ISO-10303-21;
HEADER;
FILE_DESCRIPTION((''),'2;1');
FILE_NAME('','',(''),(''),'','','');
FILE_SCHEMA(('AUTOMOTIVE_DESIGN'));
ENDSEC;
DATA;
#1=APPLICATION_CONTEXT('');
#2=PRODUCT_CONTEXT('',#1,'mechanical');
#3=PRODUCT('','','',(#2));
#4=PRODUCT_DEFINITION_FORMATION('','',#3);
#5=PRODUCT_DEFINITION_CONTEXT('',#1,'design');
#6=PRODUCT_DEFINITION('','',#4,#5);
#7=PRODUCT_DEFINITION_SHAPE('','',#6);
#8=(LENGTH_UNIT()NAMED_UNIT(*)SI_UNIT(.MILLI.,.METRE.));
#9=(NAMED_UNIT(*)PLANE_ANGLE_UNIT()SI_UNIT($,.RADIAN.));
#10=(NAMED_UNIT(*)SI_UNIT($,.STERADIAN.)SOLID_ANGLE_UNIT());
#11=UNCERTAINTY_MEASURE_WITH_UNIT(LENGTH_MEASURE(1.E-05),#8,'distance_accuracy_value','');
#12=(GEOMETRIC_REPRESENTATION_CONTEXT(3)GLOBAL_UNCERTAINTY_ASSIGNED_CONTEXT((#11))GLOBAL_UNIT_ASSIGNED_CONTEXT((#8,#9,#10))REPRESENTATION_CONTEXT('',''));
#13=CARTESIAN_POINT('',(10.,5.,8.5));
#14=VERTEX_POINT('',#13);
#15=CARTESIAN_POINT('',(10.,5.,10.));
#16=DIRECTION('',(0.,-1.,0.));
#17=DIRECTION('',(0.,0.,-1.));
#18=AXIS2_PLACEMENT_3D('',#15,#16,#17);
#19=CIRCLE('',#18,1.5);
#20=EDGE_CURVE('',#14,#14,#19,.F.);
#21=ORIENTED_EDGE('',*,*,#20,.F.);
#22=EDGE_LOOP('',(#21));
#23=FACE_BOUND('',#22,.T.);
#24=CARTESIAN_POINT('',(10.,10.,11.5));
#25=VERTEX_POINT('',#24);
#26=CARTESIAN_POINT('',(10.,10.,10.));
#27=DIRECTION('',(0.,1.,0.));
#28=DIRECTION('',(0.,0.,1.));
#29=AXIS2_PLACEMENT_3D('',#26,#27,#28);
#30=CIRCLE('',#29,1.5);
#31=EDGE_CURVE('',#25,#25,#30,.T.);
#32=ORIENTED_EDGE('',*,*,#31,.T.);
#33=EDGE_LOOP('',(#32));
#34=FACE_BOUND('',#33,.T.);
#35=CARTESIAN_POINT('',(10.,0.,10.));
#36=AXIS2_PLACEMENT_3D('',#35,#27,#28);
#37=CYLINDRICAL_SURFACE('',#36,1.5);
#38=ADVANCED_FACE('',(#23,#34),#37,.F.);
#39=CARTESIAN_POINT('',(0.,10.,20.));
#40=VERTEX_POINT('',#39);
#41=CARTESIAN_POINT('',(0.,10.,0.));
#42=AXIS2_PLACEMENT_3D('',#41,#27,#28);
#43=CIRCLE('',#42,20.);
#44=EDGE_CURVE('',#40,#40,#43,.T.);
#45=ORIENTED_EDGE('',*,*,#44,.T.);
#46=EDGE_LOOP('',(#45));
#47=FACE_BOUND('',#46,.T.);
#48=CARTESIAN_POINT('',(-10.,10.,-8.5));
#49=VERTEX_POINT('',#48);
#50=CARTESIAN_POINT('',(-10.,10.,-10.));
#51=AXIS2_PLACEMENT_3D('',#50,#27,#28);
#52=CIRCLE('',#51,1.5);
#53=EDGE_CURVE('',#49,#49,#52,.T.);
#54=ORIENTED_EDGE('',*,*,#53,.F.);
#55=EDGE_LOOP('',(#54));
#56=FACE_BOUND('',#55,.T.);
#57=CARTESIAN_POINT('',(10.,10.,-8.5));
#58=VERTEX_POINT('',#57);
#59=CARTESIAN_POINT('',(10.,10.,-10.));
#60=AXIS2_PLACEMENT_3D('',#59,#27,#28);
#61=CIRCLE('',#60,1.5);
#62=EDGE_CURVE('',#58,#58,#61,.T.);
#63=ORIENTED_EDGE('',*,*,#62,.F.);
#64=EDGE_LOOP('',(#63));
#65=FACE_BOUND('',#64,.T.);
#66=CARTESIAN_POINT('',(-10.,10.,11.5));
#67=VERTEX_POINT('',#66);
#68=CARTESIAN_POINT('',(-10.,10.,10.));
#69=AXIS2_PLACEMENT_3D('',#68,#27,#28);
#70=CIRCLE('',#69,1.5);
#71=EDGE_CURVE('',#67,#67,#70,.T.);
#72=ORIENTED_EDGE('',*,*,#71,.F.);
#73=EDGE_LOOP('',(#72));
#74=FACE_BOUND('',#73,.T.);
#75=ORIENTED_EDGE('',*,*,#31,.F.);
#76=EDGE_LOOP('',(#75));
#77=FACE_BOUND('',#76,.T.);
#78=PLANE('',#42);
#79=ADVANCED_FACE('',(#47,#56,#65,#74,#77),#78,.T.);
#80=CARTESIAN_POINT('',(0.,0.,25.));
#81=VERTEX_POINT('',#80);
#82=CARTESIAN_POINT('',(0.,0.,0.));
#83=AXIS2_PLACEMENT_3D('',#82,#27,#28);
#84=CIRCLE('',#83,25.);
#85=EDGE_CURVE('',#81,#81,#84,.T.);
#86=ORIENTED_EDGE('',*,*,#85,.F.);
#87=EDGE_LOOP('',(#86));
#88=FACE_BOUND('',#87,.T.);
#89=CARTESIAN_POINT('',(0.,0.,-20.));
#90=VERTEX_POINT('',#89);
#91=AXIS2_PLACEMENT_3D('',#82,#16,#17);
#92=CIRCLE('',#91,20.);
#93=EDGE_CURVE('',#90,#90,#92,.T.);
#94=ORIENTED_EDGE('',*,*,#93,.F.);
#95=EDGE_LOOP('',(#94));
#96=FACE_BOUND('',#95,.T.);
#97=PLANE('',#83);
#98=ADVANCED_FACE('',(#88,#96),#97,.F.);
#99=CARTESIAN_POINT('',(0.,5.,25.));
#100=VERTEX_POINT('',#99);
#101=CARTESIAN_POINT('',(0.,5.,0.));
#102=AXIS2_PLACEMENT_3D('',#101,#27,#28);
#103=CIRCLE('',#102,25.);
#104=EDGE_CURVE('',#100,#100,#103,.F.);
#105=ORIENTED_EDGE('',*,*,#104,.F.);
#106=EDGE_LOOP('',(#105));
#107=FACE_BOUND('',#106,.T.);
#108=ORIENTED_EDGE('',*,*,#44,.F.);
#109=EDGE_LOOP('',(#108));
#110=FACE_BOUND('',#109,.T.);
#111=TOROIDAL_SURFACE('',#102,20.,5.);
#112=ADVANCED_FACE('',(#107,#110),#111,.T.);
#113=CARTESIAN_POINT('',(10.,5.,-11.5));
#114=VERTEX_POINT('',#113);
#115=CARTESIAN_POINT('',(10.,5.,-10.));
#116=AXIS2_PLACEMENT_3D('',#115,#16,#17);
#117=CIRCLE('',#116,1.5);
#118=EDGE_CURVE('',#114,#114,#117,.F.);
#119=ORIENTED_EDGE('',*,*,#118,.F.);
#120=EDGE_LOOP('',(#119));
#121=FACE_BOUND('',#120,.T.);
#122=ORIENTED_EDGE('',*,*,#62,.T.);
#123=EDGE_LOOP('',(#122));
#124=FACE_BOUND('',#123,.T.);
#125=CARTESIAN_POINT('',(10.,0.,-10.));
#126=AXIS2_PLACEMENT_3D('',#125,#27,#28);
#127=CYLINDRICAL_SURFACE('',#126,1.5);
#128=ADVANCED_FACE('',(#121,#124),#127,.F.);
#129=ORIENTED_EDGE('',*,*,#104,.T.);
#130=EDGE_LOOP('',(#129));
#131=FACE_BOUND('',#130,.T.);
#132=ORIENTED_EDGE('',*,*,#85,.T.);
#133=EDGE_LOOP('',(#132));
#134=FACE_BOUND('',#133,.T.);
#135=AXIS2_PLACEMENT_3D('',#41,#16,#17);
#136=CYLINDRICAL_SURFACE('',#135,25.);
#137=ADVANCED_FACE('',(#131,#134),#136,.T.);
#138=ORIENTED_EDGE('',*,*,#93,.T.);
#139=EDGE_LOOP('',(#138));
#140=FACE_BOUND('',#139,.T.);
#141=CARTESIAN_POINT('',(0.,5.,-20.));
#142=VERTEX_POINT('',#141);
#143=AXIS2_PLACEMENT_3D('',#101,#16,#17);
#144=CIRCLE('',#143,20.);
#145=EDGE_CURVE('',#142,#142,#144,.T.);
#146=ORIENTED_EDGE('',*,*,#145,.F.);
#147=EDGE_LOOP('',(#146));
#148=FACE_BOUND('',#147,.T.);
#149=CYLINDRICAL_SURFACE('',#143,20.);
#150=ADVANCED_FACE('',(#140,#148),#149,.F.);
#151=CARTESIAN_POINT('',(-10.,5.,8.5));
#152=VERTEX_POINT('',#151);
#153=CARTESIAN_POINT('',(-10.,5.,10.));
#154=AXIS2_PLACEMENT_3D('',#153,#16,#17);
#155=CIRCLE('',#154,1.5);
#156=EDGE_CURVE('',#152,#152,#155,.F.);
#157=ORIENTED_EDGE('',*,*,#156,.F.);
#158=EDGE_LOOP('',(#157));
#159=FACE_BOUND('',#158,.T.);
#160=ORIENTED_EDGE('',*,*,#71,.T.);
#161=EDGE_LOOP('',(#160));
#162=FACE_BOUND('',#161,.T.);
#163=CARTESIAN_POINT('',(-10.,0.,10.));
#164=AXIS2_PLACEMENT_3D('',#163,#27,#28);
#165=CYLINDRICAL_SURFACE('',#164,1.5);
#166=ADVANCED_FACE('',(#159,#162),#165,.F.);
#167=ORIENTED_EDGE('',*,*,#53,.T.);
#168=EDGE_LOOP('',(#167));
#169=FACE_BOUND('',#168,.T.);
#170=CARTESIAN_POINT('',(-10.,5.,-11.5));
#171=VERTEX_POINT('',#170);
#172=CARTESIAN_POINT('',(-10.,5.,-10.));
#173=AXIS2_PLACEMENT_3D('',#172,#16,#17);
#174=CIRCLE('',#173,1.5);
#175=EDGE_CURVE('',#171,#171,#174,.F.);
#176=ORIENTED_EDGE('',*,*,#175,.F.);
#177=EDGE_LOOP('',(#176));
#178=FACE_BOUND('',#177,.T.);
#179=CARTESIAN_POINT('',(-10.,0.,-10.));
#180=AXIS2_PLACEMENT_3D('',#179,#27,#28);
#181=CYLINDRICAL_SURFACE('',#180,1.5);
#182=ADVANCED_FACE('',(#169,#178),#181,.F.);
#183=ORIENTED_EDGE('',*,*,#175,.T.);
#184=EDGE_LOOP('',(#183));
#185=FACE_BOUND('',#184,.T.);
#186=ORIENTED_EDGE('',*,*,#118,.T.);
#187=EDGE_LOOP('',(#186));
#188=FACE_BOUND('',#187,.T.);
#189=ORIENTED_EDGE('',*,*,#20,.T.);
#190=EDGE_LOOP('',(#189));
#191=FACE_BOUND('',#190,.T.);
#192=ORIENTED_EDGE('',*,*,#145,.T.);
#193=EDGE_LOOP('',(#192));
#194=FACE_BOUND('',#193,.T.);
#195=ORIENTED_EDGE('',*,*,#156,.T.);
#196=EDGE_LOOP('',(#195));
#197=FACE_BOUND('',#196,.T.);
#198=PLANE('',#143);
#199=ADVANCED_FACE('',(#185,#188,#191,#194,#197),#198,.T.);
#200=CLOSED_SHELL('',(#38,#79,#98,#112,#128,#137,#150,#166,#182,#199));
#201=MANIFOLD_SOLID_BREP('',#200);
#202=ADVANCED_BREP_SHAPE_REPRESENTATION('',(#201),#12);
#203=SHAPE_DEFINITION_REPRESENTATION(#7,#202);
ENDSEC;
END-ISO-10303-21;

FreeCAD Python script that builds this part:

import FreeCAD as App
import Part
import Sketcher

V = App.Vector


def edges_at(feature, points):
    """Names of the edges that pass closest to the given points."""
    edges = feature.Shape.Edges
    near = lambda p: min(range(len(edges)), key=lambda i: edges[i].distToShape(Part.Vertex(*p))[0])
    return sorted({f"Edge{near(p) + 1}" for p in points})

doc = App.newDocument("Part")
body = doc.addObject("PartDesign::Body", "Body")

sketch1 = doc.addObject("Sketcher::SketchObject", "Sketch")
body.addObject(sketch1)
sketch1.AttachmentSupport = (doc.XZ_Plane, [""])
sketch1.MapMode = "FlatFace"
sketch1.addGeometry(Part.Circle(V(0, 0, 0), V(0, 0, 1), 25), False)
sketch1.addConstraint(Sketcher.Constraint("Coincident", 0, 3, -1, 1))
sketch1.addConstraint(Sketcher.Constraint("Diameter", 0, 50.0))
pad1 = doc.addObject("PartDesign::Pad", "Pad")
body.addObject(pad1)
pad1.Profile = sketch1
pad1.Length = 10
pad1.Reversed = True
doc.recompute()

fillet = doc.addObject("PartDesign::Fillet", "Fillet")
body.addObject(fillet)
fillet.Base = (pad1, edges_at(pad1, [(0, 10, -25)]))
fillet.Radius = 5

sketch2 = doc.addObject("Sketcher::SketchObject", "Sketch001")
body.addObject(sketch2)
sketch2.AttachmentSupport = (doc.XZ_Plane, [""])
sketch2.MapMode = "FlatFace"
sketch2.AttachmentOffset = App.Placement(V(0, 0, -10), App.Rotation())
sketch2.addGeometry(Part.Circle(V(-10, -10, 0), V(0, 0, 1), 1.5), False)
sketch2.addGeometry(Part.Circle(V(10, -10, 0), V(0, 0, 1), 1.5), False)
sketch2.addGeometry(Part.Circle(V(-10, 10, 0), V(0, 0, 1), 1.5), False)
sketch2.addGeometry(Part.Circle(V(10, 10, 0), V(0, 0, 1), 1.5), False)
sketch2.addConstraint(Sketcher.Constraint("Equal", 0, 1))
sketch2.addConstraint(Sketcher.Constraint("Equal", 1, 2))
sketch2.addConstraint(Sketcher.Constraint("Equal", 2, 3))
sketch2.addConstraint(Sketcher.Constraint("Symmetric", 1, 3, 2, 3, -1, 1))
sketch2.addConstraint(Sketcher.Constraint("Symmetric", 0, 3, 3, 3, -1, 1))
sketch2.addConstraint(Sketcher.Constraint("Symmetric", 0, 3, 1, 3, -2))
sketch2.addConstraint(Sketcher.Constraint("Diameter", 0, 3.0))
sketch2.addConstraint(Sketcher.Constraint("DistanceX", 0, 3, -1, 1, 10.0))
sketch2.addConstraint(Sketcher.Constraint("DistanceY", 0, 3, -1, 1, 10.0))
pocket1 = doc.addObject("PartDesign::Pocket", "Pocket")
body.addObject(pocket1)
pocket1.Profile = sketch2
pocket1.Type = "ThroughAll"
pocket1.Reversed = True

sketch3 = doc.addObject("Sketcher::SketchObject", "Sketch002")
body.addObject(sketch3)
sketch3.AttachmentSupport = (doc.XZ_Plane, [""])
sketch3.MapMode = "FlatFace"
sketch3.addGeometry(Part.Circle(V(0, 0, 0), V(0, 0, 1), 20), False)
sketch3.addConstraint(Sketcher.Constraint("Coincident", 0, 3, -1, 1))
sketch3.addConstraint(Sketcher.Constraint("Diameter", 0, 40.0))
pocket2 = doc.addObject("PartDesign::Pocket", "Pocket001")
body.addObject(pocket2)
pocket2.Profile = sketch3
pocket2.Length = 5

doc.recompute()
